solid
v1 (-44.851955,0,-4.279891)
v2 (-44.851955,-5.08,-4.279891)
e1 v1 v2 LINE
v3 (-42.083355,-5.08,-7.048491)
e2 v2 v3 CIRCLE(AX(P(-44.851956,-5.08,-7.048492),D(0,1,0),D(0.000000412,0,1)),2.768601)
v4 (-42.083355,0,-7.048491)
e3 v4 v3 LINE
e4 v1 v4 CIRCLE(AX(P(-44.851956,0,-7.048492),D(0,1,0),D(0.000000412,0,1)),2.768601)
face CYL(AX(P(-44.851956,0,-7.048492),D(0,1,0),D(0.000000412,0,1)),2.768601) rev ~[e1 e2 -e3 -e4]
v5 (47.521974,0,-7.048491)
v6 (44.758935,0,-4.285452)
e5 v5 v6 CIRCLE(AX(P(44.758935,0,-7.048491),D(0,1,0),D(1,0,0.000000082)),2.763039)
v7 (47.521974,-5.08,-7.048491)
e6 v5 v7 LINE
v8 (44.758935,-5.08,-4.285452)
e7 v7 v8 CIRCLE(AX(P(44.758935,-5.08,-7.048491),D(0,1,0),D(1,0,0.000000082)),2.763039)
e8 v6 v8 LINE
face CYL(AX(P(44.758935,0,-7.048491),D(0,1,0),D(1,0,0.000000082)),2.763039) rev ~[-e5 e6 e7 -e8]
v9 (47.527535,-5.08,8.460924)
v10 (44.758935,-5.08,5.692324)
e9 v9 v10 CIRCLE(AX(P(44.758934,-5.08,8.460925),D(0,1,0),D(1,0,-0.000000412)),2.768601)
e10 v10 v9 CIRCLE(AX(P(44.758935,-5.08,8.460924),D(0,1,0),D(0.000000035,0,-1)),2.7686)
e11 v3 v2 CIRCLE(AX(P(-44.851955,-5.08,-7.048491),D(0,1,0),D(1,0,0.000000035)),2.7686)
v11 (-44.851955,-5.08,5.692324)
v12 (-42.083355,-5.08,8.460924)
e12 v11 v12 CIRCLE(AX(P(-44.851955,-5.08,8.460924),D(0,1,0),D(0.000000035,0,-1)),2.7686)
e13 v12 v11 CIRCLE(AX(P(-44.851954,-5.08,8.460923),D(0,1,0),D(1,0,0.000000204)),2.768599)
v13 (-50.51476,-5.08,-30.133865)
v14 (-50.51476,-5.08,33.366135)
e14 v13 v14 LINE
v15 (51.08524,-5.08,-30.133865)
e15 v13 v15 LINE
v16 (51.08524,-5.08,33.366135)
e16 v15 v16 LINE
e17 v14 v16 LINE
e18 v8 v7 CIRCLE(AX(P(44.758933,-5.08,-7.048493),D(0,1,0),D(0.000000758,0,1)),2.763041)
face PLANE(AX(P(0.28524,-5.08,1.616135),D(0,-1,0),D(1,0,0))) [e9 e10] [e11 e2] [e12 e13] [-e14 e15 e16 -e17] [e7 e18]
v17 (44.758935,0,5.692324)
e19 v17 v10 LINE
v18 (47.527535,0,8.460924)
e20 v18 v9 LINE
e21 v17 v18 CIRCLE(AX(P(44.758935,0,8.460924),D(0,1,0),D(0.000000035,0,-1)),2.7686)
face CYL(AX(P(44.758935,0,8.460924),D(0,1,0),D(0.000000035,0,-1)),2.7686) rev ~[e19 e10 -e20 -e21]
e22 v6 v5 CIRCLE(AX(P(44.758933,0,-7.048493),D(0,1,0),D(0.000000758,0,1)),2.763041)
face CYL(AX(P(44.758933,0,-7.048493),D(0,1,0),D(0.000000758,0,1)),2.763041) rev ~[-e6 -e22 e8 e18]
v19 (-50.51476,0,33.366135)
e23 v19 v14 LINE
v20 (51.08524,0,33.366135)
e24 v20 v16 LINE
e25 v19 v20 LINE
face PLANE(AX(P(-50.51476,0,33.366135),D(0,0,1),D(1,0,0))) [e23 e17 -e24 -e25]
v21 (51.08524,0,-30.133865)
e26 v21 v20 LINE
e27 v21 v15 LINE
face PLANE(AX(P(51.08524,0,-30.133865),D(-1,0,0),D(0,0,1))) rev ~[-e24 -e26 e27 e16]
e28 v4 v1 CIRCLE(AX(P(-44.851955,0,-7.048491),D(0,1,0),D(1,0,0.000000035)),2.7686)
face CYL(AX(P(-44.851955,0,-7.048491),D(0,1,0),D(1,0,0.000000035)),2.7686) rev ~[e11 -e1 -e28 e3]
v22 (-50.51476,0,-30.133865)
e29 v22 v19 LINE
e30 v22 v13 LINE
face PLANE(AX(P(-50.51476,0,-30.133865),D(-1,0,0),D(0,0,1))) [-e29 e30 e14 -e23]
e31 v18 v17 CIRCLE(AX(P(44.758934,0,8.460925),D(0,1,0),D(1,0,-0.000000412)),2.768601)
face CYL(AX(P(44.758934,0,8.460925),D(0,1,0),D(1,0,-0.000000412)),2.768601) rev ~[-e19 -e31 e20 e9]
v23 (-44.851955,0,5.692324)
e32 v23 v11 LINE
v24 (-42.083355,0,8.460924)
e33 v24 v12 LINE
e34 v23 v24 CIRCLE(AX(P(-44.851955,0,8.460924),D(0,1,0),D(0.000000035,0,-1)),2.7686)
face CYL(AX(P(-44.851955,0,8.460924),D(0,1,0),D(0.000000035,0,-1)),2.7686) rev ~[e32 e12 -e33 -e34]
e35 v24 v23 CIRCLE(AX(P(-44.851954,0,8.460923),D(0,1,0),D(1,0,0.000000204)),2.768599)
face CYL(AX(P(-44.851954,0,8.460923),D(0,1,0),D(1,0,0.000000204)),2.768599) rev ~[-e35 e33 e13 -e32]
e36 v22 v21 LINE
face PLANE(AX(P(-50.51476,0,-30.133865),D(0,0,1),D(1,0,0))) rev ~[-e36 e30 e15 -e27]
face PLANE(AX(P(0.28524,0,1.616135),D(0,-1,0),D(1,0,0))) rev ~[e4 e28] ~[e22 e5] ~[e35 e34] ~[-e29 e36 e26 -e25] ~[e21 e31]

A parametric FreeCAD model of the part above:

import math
import FreeCAD as App
import Part
import Sketcher
from FreeCAD import Vector
Q = App.Units.Quantity

doc = App.newDocument("Part")
body = doc.addObject("PartDesign::Body", "Body")

# Sketch on XZ plane
sketch1 = body.newObject("Sketcher::SketchObject", "Sketch")
sketch1.AttachmentSupport = (doc.getObject("XZ_Plane"), [""])
sketch1.MapMode = "FlatFace"
sketch1.addGeometry([
    Part.LineSegment(Vector(-50.51476, 33.366135, 0), Vector(-50.51476, -30.133865, 0)),  # 0
    Part.LineSegment(Vector(-50.51476, -30.133865, 0), Vector(51.08524, -30.133865, 0)),  # 1
    Part.LineSegment(Vector(51.08524, -30.133865, 0), Vector(51.08524, 33.366135, 0)),  # 2
    Part.LineSegment(Vector(51.08524, 33.366135, 0), Vector(-50.51476, 33.366135, 0)),  # 3
    Part.ArcOfCircle(Part.Circle(Vector(-44.851955, -7.048491, 0), Vector(0, 0, 1), 2.7686), math.radians(89.999998), math.radians(360.000002)),  # 4
    Part.ArcOfCircle(Part.Circle(Vector(-44.851956, -7.048492, 0), Vector(0, 0, 1), 2.768601), math.radians(0.000024), math.radians(89.999976)),  # 5
    Part.ArcOfCircle(Part.Circle(Vector(44.758935, -7.048491, 0), Vector(0, 0, 1), 2.763039), math.radians(89.999995), math.radians(360.000005)),  # 6
    Part.ArcOfCircle(Part.Circle(Vector(44.758933, -7.048493, 0), Vector(0, 0, 1), 2.763041), math.radians(0.000043), math.radians(89.999957)),  # 7
    Part.ArcOfCircle(Part.Circle(Vector(-44.851955, 8.460924, 0), Vector(0, 0, 1), 2.7686), math.radians(-0.000002), math.radians(270.000002)),  # 8
    Part.ArcOfCircle(Part.Circle(Vector(-44.851954, 8.460923, 0), Vector(0, 0, 1), 2.768599), math.radians(-90.000012), math.radians(0.000012)),  # 9
    Part.ArcOfCircle(Part.Circle(Vector(44.758935, 8.460924, 0), Vector(0, 0, 1), 2.7686), math.radians(-0.000002), math.radians(270.000002)),  # 10
    Part.ArcOfCircle(Part.Circle(Vector(44.758934, 8.460925, 0), Vector(0, 0, 1), 2.768601), math.radians(-89.999976), math.radians(-0.000024)),  # 11
], False)
sketch1.addConstraint([
    Sketcher.Constraint("Coincident", 0, 2, 1, 1),
    Sketcher.Constraint("Coincident", 1, 2, 2, 1),
    Sketcher.Constraint("Coincident", 2, 2, 3, 1),
    Sketcher.Constraint("Coincident", 3, 2, 0, 1),
    Sketcher.Constraint("Tangent", 4, 1, 5, 2),
    Sketcher.Constraint("Coincident", 5, 1, 4, 2),
    Sketcher.Constraint("Tangent", 6, 1, 7, 2),
    Sketcher.Constraint("Coincident", 7, 1, 6, 2),
    Sketcher.Constraint("Tangent", 8, 1, 9, 2),
    Sketcher.Constraint("Coincident", 9, 1, 8, 2),
    Sketcher.Constraint("Tangent", 10, 1, 11, 2),
    Sketcher.Constraint("Coincident", 11, 1, 10, 2),
    Sketcher.Constraint("Vertical", 0),
    Sketcher.Constraint("Horizontal", 1),
    Sketcher.Constraint("Vertical", 2),
    Sketcher.Constraint("Horizontal", 3),
    Sketcher.Constraint("Equal", 5, 8),
    Sketcher.Constraint("Equal", 9, 10),
    Sketcher.Constraint("Horizontal", 5, 3, 6, 3),
    Sketcher.Constraint("Horizontal", 9, 3, 10, 3),
    Sketcher.Constraint("Horizontal", 6, 3, 5, 1),
    Sketcher.Constraint("Horizontal", 5, 1, 7, 1),
    Sketcher.Constraint("Horizontal", 11, 3, 8, 1),
    Sketcher.Constraint("Horizontal", 8, 1, 10, 1),
    Sketcher.Constraint("Vertical", 5, 3, 8, 3),
    Sketcher.Constraint("Vertical", 7, 3, 10, 3),
    Sketcher.Constraint("Vertical", 9, 3, 4, 1),
    Sketcher.Constraint("Vertical", 11, 3, 6, 1),
    Sketcher.Constraint("Vertical", 4, 1, 9, 1),
    Sketcher.Constraint("Vertical", 6, 1, 11, 1),
    Sketcher.Constraint("DistanceX", 1, 1, 1, 2, Q("4 in")),
    Sketcher.Constraint("DistanceY", 0, 2, 0, 1, Q("2.5 in")),
    Sketcher.Constraint("Radius", 4, Q("0.109 in")),
    Sketcher.Constraint("Radius", 6, Q("2.763039 mm")),
    Sketcher.Constraint("DistanceY", 4, 3, -1, 1, Q("7.048491 mm")),
    Sketcher.Constraint("DistanceX", 0, 2, -1, 1, Q("50.51476 mm")),
    Sketcher.Constraint("DistanceX", 4, 3, 6, 3, Q("89.61089 mm")),
    Sketcher.Constraint("DistanceY", 7, 3, 11, 3, Q("15.509418 mm")),
    Sketcher.Constraint("DistanceY", 0, 2, 9, 3, Q("38.594788 mm")),
    Sketcher.Constraint("DistanceX", 4, 3, -1, 1, Q("44.851955 mm")),
])
pad1 = body.newObject("PartDesign::Pad", "Pad")
pad1.Profile = sketch1
pad1.Length = Q("0.2 in")

doc.recompute()
